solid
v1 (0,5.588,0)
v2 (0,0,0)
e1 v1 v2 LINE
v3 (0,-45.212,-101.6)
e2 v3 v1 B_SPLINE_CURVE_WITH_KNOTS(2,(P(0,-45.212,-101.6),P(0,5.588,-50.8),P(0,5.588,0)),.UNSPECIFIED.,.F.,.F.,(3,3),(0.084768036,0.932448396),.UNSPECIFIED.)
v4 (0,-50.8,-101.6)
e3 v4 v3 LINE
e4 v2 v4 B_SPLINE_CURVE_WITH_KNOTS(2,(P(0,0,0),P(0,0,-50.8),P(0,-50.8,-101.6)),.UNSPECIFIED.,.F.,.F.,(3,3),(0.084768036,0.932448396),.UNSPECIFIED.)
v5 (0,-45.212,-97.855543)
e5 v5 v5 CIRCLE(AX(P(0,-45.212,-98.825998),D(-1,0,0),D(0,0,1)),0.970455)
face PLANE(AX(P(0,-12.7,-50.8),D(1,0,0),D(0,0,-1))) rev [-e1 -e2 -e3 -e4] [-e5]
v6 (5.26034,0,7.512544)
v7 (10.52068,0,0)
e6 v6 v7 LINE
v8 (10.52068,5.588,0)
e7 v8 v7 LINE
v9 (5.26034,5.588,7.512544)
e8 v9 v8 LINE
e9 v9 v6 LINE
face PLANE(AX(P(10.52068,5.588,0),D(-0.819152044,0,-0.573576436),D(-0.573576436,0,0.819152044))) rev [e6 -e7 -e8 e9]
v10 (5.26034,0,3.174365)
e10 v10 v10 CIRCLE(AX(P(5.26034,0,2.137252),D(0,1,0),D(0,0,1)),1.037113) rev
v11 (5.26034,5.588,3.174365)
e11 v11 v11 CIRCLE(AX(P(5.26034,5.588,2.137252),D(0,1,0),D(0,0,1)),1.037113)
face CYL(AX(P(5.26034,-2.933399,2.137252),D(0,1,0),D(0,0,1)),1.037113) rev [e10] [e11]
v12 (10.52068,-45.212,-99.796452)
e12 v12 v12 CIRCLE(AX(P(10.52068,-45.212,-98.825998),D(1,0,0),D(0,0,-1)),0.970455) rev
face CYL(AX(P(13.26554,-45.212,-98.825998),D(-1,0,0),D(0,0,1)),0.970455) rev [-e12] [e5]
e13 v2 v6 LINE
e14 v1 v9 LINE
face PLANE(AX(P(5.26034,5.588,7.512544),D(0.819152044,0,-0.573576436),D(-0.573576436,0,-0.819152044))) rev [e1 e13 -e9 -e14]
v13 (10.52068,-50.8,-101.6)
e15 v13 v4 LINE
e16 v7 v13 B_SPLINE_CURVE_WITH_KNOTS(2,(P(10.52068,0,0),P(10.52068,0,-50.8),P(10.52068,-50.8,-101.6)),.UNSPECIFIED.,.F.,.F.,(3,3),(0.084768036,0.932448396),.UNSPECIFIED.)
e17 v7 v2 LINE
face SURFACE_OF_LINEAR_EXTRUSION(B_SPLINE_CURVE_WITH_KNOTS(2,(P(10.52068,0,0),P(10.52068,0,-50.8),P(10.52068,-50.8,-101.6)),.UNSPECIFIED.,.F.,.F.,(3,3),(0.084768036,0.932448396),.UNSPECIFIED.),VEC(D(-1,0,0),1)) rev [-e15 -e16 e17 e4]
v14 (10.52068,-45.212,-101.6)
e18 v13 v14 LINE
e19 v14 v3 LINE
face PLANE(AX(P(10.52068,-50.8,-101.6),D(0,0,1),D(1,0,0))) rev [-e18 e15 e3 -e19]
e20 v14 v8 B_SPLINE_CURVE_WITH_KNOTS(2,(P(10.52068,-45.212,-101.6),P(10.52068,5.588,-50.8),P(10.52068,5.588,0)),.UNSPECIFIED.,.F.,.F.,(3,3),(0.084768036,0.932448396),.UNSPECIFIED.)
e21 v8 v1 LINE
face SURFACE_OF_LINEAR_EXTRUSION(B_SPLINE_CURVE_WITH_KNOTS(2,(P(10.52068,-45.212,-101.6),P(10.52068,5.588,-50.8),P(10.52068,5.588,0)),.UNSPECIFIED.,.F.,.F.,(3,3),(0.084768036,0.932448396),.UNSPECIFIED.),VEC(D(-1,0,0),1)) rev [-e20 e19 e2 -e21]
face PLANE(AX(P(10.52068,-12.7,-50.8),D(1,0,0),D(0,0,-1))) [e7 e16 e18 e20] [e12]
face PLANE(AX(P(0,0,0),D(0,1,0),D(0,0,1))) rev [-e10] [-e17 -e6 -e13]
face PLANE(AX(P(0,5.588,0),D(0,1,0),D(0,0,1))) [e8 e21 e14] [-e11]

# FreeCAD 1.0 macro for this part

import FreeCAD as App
import Part
import Sketcher

V = App.Vector
Q = App.Units.Quantity


def add_polygon(sketch, points):
    """Adds a closed chain of lines whose ends are joined by coincident constraints."""
    first, n = sketch.GeometryCount, len(points)
    for a, b in zip(points, points[1:] + points[:1]):
        sketch.addGeometry(Part.LineSegment(App.Vector(*a, 0), App.Vector(*b, 0)), False)
    for i in range(n):
        sketch.addConstraint(Sketcher.Constraint("Coincident", first + i, 2, first + (i + 1) % n, 1))

doc = App.newDocument("Part")
params = doc.addObject("Spreadsheet::Sheet", "Params")
for row, (alias, value) in enumerate([
    ("pad1_length", "0.4142 in"),
    ("pad2_length", "0.22 in"),
    ("pocket1_length", "0.22 in"),
    ("pocket2_length", "0.4142 in"),
], start=1):
    params.set(f"A{row}", alias)
    params.set(f"B{row}", "=" + value)
    params.setAlias(f"B{row}", alias)

body = doc.addObject("PartDesign::Body", "Body")

# Sketch on YZ plane
sketch1 = body.newObject("Sketcher::SketchObject", "Sketch")
sketch1.AttachmentSupport = (doc.getObject("YZ_Plane"), [""])
sketch1.MapMode = "FlatFace"
sketch1.addGeometry([
    Part.LineSegment(V(5.588, 0, 0), V(0, 0, 0)),
    Part.BSplineCurve([V(0, 0, 0), V(0, -50.8, 0), V(-50.8, -101.6, 0)], [3, 3], [0.084768036, 0.932448396], False, 2, [1, 1, 1], False),
    Part.LineSegment(V(-50.8, -101.6, 0), V(-45.212, -101.6, 0)),
    Part.BSplineCurve([V(5.588, 0, 0), V(5.588, -50.8, 0), V(-45.212, -101.6, 0)], [3, 3], [0.084768036, 0.932448396], False, 2, [1, 1, 1], False),
], False)
sketch1.addConstraint([
    Sketcher.Constraint("Block", 1),
    Sketcher.Constraint("Block", 3),
    Sketcher.Constraint("Coincident", 0, 2, 1, 1),
    Sketcher.Constraint("Coincident", 1, 2, 2, 1),
    Sketcher.Constraint("Coincident", 2, 2, 3, 2),
    Sketcher.Constraint("Coincident", 3, 1, 0, 1),
])
pad1 = body.newObject("PartDesign::Pad", "Pad")
pad1.Profile = sketch1
pad1.setExpression("Length", "Params.pad1_length")

# Sketch on XZ plane
sketch2 = body.newObject("Sketcher::SketchObject", "Sketch001")
sketch2.AttachmentSupport = (doc.getObject("XZ_Plane"), [""])
sketch2.MapMode = "FlatFace"
add_polygon(sketch2, [(11, 0), (0, 0), (5, 8)])  # lines 0-2
sketch2.addConstraint([
    Sketcher.Constraint("Horizontal", 0),
    Sketcher.Constraint("Coincident", 0, 2, -1, 1),
    Sketcher.Constraint("Equal", 1, 2),
    Sketcher.Constraint("Angle", 1, Q("55 deg")),
    Sketcher.Constraint("DistanceX", 0, 2, 0, 1, Q("0.4142 in")),
])
pad2 = body.newObject("PartDesign::Pad", "Pad001")
pad2.Profile = sketch2
pad2.setExpression("Length", "Params.pad2_length")
pad2.Reversed = True

# Sketch on XZ plane
sketch3 = body.newObject("Sketcher::SketchObject", "Sketch002")
sketch3.AttachmentSupport = (doc.getObject("XZ_Plane"), [""])
sketch3.MapMode = "FlatFace"
sketch3.AttachmentOffset = App.Placement(V(0, 0, -0.22 * 25.4), App.Rotation())
sketch3.addGeometry(Part.Circle(V(5.3, 2.1, 0), V(0, 0, 1), 1), False)
sketch3.addConstraint([
    Sketcher.Constraint("Diameter", 0, 2.074227),
    Sketcher.Constraint("DistanceX", -1, 1, 0, 3, Q("0.2071 in")),
    Sketcher.Constraint("DistanceY", -1, 1, 0, 3, 2.137252),
])
pocket1 = body.newObject("PartDesign::Pocket", "Pocket")
pocket1.Profile = sketch3
pocket1.setExpression("Length", "Params.pocket1_length")
pocket1.Reversed = True

# Sketch on YZ plane
sketch4 = body.newObject("Sketcher::SketchObject", "Sketch003")
sketch4.AttachmentSupport = (doc.getObject("YZ_Plane"), [""])
sketch4.MapMode = "FlatFace"
sketch4.addGeometry(Part.Circle(V(-45.2, -98.8, 0), V(0, 0, 1), 1), False)
sketch4.addConstraint([
    Sketcher.Constraint("DistanceX", 0, 3, -1, 1, Q("1.78 in")),
    Sketcher.Constraint("Diameter", 0, 1.940909),
    Sketcher.Constraint("DistanceY", 0, 3, -1, 1, 98.825998),
])
pocket2 = body.newObject("PartDesign::Pocket", "Pocket001")
pocket2.Profile = sketch4
pocket2.setExpression("Length", "Params.pocket2_length")
pocket2.Reversed = True

doc.recompute()
